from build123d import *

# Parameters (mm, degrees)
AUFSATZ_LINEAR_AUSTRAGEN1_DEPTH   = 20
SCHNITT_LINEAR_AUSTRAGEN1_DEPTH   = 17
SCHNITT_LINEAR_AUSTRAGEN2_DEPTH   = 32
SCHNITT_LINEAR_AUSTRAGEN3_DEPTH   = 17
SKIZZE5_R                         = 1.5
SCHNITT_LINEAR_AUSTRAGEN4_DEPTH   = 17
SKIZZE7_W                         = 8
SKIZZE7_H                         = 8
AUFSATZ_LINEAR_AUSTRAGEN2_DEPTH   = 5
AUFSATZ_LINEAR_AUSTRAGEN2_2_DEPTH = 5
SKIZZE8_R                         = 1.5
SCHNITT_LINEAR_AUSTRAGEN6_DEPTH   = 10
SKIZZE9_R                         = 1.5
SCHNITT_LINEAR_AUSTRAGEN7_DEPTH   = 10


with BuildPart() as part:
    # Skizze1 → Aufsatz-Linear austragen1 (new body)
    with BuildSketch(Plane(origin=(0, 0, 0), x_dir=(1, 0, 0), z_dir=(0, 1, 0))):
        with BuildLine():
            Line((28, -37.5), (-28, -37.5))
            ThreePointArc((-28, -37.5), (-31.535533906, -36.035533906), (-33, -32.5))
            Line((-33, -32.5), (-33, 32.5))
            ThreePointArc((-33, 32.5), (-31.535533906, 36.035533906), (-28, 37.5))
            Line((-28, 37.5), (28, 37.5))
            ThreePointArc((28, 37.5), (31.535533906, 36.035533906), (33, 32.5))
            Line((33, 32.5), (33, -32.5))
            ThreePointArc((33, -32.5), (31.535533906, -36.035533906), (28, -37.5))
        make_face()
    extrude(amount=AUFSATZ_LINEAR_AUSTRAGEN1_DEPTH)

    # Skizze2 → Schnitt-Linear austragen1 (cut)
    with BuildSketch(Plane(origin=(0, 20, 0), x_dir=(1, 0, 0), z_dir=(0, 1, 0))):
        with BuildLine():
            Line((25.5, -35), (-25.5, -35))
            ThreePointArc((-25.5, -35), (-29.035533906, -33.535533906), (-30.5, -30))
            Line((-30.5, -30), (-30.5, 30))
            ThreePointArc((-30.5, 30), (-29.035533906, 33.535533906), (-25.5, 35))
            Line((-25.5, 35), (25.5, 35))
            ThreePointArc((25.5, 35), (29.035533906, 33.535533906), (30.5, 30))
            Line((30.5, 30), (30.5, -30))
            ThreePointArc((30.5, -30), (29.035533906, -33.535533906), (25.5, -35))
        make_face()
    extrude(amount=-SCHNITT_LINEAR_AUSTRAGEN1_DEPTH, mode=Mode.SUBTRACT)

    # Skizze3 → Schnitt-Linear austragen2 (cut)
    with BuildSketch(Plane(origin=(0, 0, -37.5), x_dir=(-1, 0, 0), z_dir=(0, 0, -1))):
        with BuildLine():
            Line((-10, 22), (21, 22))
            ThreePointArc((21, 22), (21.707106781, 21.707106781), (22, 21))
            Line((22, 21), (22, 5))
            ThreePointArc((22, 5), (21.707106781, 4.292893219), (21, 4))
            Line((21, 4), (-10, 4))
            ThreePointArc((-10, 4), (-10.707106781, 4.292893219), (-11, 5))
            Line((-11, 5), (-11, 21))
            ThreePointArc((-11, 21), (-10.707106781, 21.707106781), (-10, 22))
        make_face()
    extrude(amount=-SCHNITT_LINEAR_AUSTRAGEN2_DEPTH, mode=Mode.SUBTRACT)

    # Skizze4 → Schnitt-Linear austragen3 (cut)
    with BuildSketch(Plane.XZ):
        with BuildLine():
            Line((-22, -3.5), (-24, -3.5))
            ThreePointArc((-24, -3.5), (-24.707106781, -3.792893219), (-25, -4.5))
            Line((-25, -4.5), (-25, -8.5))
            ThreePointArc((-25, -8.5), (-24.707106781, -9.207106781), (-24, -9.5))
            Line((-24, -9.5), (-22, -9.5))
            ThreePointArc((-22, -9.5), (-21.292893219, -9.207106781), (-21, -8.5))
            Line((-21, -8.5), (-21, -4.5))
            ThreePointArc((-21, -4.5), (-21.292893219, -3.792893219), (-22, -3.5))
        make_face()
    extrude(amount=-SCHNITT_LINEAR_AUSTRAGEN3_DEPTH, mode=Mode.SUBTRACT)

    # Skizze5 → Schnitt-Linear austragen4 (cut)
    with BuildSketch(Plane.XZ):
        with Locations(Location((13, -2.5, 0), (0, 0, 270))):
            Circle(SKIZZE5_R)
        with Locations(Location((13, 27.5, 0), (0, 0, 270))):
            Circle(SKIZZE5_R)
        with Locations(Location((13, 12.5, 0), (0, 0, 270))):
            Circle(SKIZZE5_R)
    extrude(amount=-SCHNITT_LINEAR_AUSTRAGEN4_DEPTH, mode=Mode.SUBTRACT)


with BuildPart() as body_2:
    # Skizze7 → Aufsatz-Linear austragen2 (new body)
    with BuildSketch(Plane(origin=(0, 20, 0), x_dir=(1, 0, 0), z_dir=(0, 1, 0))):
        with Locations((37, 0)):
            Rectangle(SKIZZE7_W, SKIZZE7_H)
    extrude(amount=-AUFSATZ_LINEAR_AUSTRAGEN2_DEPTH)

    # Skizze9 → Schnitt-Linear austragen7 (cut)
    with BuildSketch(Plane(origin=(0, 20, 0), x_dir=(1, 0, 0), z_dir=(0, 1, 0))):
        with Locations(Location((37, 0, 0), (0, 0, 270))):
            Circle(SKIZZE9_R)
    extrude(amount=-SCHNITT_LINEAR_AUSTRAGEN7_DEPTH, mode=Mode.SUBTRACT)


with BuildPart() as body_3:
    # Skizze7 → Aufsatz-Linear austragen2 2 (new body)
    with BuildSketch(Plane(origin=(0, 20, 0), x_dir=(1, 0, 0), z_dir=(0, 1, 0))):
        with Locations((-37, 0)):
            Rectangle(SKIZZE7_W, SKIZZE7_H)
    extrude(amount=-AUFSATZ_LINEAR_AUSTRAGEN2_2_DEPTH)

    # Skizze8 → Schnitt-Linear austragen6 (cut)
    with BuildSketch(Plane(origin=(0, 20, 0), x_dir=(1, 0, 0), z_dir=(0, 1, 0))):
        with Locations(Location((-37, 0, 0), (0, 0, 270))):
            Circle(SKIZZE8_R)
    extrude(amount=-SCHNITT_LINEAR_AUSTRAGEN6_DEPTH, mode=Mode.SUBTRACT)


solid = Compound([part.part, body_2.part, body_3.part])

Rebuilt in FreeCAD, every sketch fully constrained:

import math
import FreeCAD as App
import Part
import Sketcher
Q = App.Units.Quantity


def add_polygon(sketch, points):
    """Adds a closed chain of lines whose ends are joined by coincident constraints."""
    first, n = sketch.GeometryCount, len(points)
    for a, b in zip(points, points[1:] + points[:1]):
        sketch.addGeometry(Part.LineSegment(App.Vector(*a, 0), App.Vector(*b, 0)), False)
    for i in range(n):
        sketch.addConstraint(Sketcher.Constraint("Coincident", first + i, 2, first + (i + 1) % n, 1))

doc = App.newDocument("Part")
body = doc.addObject("PartDesign::Body", "Body")

# Sketch on XZ plane
sketch1 = doc.addObject("Sketcher::SketchObject", "Sketch")
body.addObject(sketch1)
sketch1.AttachmentSupport = (doc.XZ_Plane, [""])
sketch1.MapMode = "FlatFace"
sketch1.addGeometry(Part.LineSegment(App.Vector(-28, 37.5, 0), App.Vector(28, 37.5, 0)), False)
sketch1.addGeometry(Part.ArcOfCircle(Part.Circle(App.Vector(28, 32.5, 0), App.Vector(0, 0, 1), 5), math.radians(0), math.radians(90)), False)
sketch1.addGeometry(Part.LineSegment(App.Vector(33, 32.5, 0), App.Vector(33, -32.5, 0)), False)
sketch1.addGeometry(Part.ArcOfCircle(Part.Circle(App.Vector(28, -32.5, 0), App.Vector(0, 0, 1), 5), math.radians(-90), math.radians(0)), False)
sketch1.addGeometry(Part.LineSegment(App.Vector(28, -37.5, 0), App.Vector(-28, -37.5, 0)), False)
sketch1.addGeometry(Part.ArcOfCircle(Part.Circle(App.Vector(-28, -32.5, 0), App.Vector(0, 0, 1), 5), math.radians(180), math.radians(270)), False)
sketch1.addGeometry(Part.LineSegment(App.Vector(-33, -32.5, 0), App.Vector(-33, 32.5, 0)), False)
sketch1.addGeometry(Part.ArcOfCircle(Part.Circle(App.Vector(-28, 32.5, 0), App.Vector(0, 0, 1), 5), math.radians(90), math.radians(180)), False)
sketch1.addConstraint(Sketcher.Constraint("Tangent", 0, 2, 1, 2))
sketch1.addConstraint(Sketcher.Constraint("Tangent", 1, 1, 2, 1))
sketch1.addConstraint(Sketcher.Constraint("Tangent", 2, 2, 3, 2))
sketch1.addConstraint(Sketcher.Constraint("Tangent", 3, 1, 4, 1))
sketch1.addConstraint(Sketcher.Constraint("Tangent", 4, 2, 5, 2))
sketch1.addConstraint(Sketcher.Constraint("Tangent", 5, 1, 6, 1))
sketch1.addConstraint(Sketcher.Constraint("Tangent", 6, 2, 7, 2))
sketch1.addConstraint(Sketcher.Constraint("Tangent", 7, 1, 0, 1))
sketch1.addConstraint(Sketcher.Constraint("Horizontal", 0))
sketch1.addConstraint(Sketcher.Constraint("Vertical", 2))
sketch1.addConstraint(Sketcher.Constraint("Horizontal", 4))
sketch1.addConstraint(Sketcher.Constraint("Vertical", 6))
sketch1.addConstraint(Sketcher.Constraint("Equal", 1, 3))
sketch1.addConstraint(Sketcher.Constraint("Equal", 3, 5))
sketch1.addConstraint(Sketcher.Constraint("Equal", 5, 7))
sketch1.addConstraint(Sketcher.Constraint("Symmetric", 1, 3, 5, 3, -1, 1))
sketch1.addConstraint(Sketcher.Constraint("Radius", 1, Q("5 mm")))
sketch1.addConstraint(Sketcher.Constraint("DistanceX", 0, 1, 0, 2, Q("56 mm")))
sketch1.addConstraint(Sketcher.Constraint("DistanceY", 2, 2, 2, 1, Q("65 mm")))
pad1 = doc.addObject("PartDesign::Pad", "Pad")
body.addObject(pad1)
pad1.Profile = sketch1
pad1.Length = 20
pad1.Reversed = True

# Sketch on XZ plane
sketch2 = doc.addObject("Sketcher::SketchObject", "Sketch001")
body.addObject(sketch2)
sketch2.AttachmentSupport = (doc.XZ_Plane, [""])
sketch2.MapMode = "FlatFace"
sketch2.AttachmentOffset = App.Placement(App.Vector(0, 0, -20), App.Rotation())
sketch2.addGeometry(Part.LineSegment(App.Vector(-25.5, 35, 0), App.Vector(25.5, 35, 0)), False)
sketch2.addGeometry(Part.ArcOfCircle(Part.Circle(App.Vector(25.5, 30, 0), App.Vector(0, 0, 1), 5), math.radians(0), math.radians(90)), False)
sketch2.addGeometry(Part.LineSegment(App.Vector(30.5, 30, 0), App.Vector(30.5, -30, 0)), False)
sketch2.addGeometry(Part.ArcOfCircle(Part.Circle(App.Vector(25.5, -30, 0), App.Vector(0, 0, 1), 5), math.radians(-90), math.radians(0)), False)
sketch2.addGeometry(Part.LineSegment(App.Vector(25.5, -35, 0), App.Vector(-25.5, -35, 0)), False)
sketch2.addGeometry(Part.ArcOfCircle(Part.Circle(App.Vector(-25.5, -30, 0), App.Vector(0, 0, 1), 5), math.radians(180), math.radians(270)), False)
sketch2.addGeometry(Part.LineSegment(App.Vector(-30.5, -30, 0), App.Vector(-30.5, 30, 0)), False)
sketch2.addGeometry(Part.ArcOfCircle(Part.Circle(App.Vector(-25.5, 30, 0), App.Vector(0, 0, 1), 5), math.radians(90), math.radians(180)), False)
sketch2.addConstraint(Sketcher.Constraint("Tangent", 0, 2, 1, 2))
sketch2.addConstraint(Sketcher.Constraint("Tangent", 1, 1, 2, 1))
sketch2.addConstraint(Sketcher.Constraint("Tangent", 2, 2, 3, 2))
sketch2.addConstraint(Sketcher.Constraint("Tangent", 3, 1, 4, 1))
sketch2.addConstraint(Sketcher.Constraint("Tangent", 4, 2, 5, 2))
sketch2.addConstraint(Sketcher.Constraint("Tangent", 5, 1, 6, 1))
sketch2.addConstraint(Sketcher.Constraint("Tangent", 6, 2, 7, 2))
sketch2.addConstraint(Sketcher.Constraint("Tangent", 7, 1, 0, 1))
sketch2.addConstraint(Sketcher.Constraint("Horizontal", 0))
sketch2.addConstraint(Sketcher.Constraint("Vertical", 2))
sketch2.addConstraint(Sketcher.Constraint("Horizontal", 4))
sketch2.addConstraint(Sketcher.Constraint("Vertical", 6))
sketch2.addConstraint(Sketcher.Constraint("Equal", 1, 3))
sketch2.addConstraint(Sketcher.Constraint("Equal", 3, 5))
sketch2.addConstraint(Sketcher.Constraint("Equal", 5, 7))
sketch2.addConstraint(Sketcher.Constraint("Symmetric", 1, 3, 5, 3, -1, 1))
sketch2.addConstraint(Sketcher.Constraint("Radius", 1, Q("5 mm")))
sketch2.addConstraint(Sketcher.Constraint("DistanceX", 0, 1, 0, 2, Q("51 mm")))
sketch2.addConstraint(Sketcher.Constraint("DistanceY", 2, 2, 2, 1, Q("60 mm")))
pocket1 = doc.addObject("PartDesign::Pocket", "Pocket")
body.addObject(pocket1)
pocket1.Profile = sketch2
pocket1.Length = 17
pocket1.Reversed = True

# Sketch on XY plane
sketch3 = doc.addObject("Sketcher::SketchObject", "Sketch002")
body.addObject(sketch3)
sketch3.AttachmentSupport = (doc.XY_Plane, [""])
sketch3.MapMode = "FlatFace"
sketch3.AttachmentOffset = App.Placement(App.Vector(0, 0, -37.5), App.Rotation())
sketch3.addGeometry(Part.LineSegment(App.Vector(-21, 22, 0), App.Vector(10, 22, 0)), False)
sketch3.addGeometry(Part.ArcOfCircle(Part.Circle(App.Vector(10, 21, 0), App.Vector(0, 0, 1), 1), math.radians(0), math.radians(90)), False)
sketch3.addGeometry(Part.LineSegment(App.Vector(11, 21, 0), App.Vector(11, 5, 0)), False)
sketch3.addGeometry(Part.ArcOfCircle(Part.Circle(App.Vector(10, 5, 0), App.Vector(0, 0, 1), 1), math.radians(-90), math.radians(0)), False)
sketch3.addGeometry(Part.LineSegment(App.Vector(10, 4, 0), App.Vector(-21, 4, 0)), False)
sketch3.addGeometry(Part.ArcOfCircle(Part.Circle(App.Vector(-21, 5, 0), App.Vector(0, 0, 1), 1), math.radians(-180), math.radians(-90)), False)
sketch3.addGeometry(Part.LineSegment(App.Vector(-22, 5, 0), App.Vector(-22, 21, 0)), False)
sketch3.addGeometry(Part.ArcOfCircle(Part.Circle(App.Vector(-21, 21, 0), App.Vector(0, 0, 1), 1), math.radians(90), math.radians(180)), False)
sketch3.addConstraint(Sketcher.Constraint("Tangent", 0, 2, 1, 2))
sketch3.addConstraint(Sketcher.Constraint("Tangent", 1, 1, 2, 1))
sketch3.addConstraint(Sketcher.Constraint("Tangent", 2, 2, 3, 2))
sketch3.addConstraint(Sketcher.Constraint("Tangent", 3, 1, 4, 1))
sketch3.addConstraint(Sketcher.Constraint("Tangent", 4, 2, 5, 2))
sketch3.addConstraint(Sketcher.Constraint("Tangent", 5, 1, 6, 1))
sketch3.addConstraint(Sketcher.Constraint("Tangent", 6, 2, 7, 2))
sketch3.addConstraint(Sketcher.Constraint("Tangent", 7, 1, 0, 1))
sketch3.addConstraint(Sketcher.Constraint("Horizontal", 0))
sketch3.addConstraint(Sketcher.Constraint("Vertical", 2))
sketch3.addConstraint(Sketcher.Constraint("Horizontal", 4))
sketch3.addConstraint(Sketcher.Constraint("Vertical", 6))
sketch3.addConstraint(Sketcher.Constraint("Equal", 1, 3))
sketch3.addConstraint(Sketcher.Constraint("Equal", 3, 5))
sketch3.addConstraint(Sketcher.Constraint("Equal", 5, 7))
sketch3.addConstraint(Sketcher.Constraint("Radius", 1, Q("1 mm")))
sketch3.addConstraint(Sketcher.Constraint("DistanceX", 0, 1, 0, 2, Q("31 mm")))
sketch3.addConstraint(Sketcher.Constraint("DistanceY", 2, 2, 2, 1, Q("16 mm")))
sketch3.addConstraint(Sketcher.Constraint("DistanceX", -1, 1, 1, 3, Q("10 mm")))
sketch3.addConstraint(Sketcher.Constraint("DistanceY", -1, 1, 1, 3, Q("21 mm")))
pocket2 = doc.addObject("PartDesign::Pocket", "Pocket001")
body.addObject(pocket2)
pocket2.Profile = sketch3
pocket2.Length = 32
pocket2.Reversed = True

# Sketch on XZ plane
sketch4 = doc.addObject("Sketcher::SketchObject", "Sketch003")
body.addObject(sketch4)
sketch4.AttachmentSupport = (doc.XZ_Plane, [""])
sketch4.MapMode = "FlatFace"
sketch4.addGeometry(Part.LineSegment(App.Vector(-22, -3.5, 0), App.Vector(-24, -3.5, 0)), False)
sketch4.addGeometry(Part.ArcOfCircle(Part.Circle(App.Vector(-24, -4.5, 0), App.Vector(0, 0, 1), 1), math.radians(90), math.radians(180)), False)
sketch4.addGeometry(Part.LineSegment(App.Vector(-25, -4.5, 0), App.Vector(-25, -8.5, 0)), False)
sketch4.addGeometry(Part.ArcOfCircle(Part.Circle(App.Vector(-24, -8.5, 0), App.Vector(0, 0, 1), 1), math.radians(-180), math.radians(-90)), False)
sketch4.addGeometry(Part.LineSegment(App.Vector(-24, -9.5, 0), App.Vector(-22, -9.5, 0)), False)
sketch4.addGeometry(Part.ArcOfCircle(Part.Circle(App.Vector(-22, -8.5, 0), App.Vector(0, 0, 1), 1), math.radians(-90), math.radians(0)), False)
sketch4.addGeometry(Part.LineSegment(App.Vector(-21, -8.5, 0), App.Vector(-21, -4.5, 0)), False)
sketch4.addGeometry(Part.ArcOfCircle(Part.Circle(App.Vector(-22, -4.5, 0), App.Vector(0, 0, 1), 1), math.radians(0), math.radians(90)), False)
sketch4.addConstraint(Sketcher.Constraint("Tangent", 0, 2, 1, 1))
sketch4.addConstraint(Sketcher.Constraint("Tangent", 1, 2, 2, 1))
sketch4.addConstraint(Sketcher.Constraint("Tangent", 2, 2, 3, 1))
sketch4.addConstraint(Sketcher.Constraint("Tangent", 3, 2, 4, 1))
sketch4.addConstraint(Sketcher.Constraint("Tangent", 4, 2, 5, 1))
sketch4.addConstraint(Sketcher.Constraint("Tangent", 5, 2, 6, 1))
sketch4.addConstraint(Sketcher.Constraint("Tangent", 6, 2, 7, 1))
sketch4.addConstraint(Sketcher.Constraint("Tangent", 7, 2, 0, 1))
sketch4.addConstraint(Sketcher.Constraint("Horizontal", 0))
sketch4.addConstraint(Sketcher.Constraint("Vertical", 2))
sketch4.addConstraint(Sketcher.Constraint("Horizontal", 4))
sketch4.addConstraint(Sketcher.Constraint("Vertical", 6))
sketch4.addConstraint(Sketcher.Constraint("Equal", 1, 3))
sketch4.addConstraint(Sketcher.Constraint("Equal", 3, 5))
sketch4.addConstraint(Sketcher.Constraint("Equal", 5, 7))
sketch4.addConstraint(Sketcher.Constraint("Radius", 1, Q("1 mm")))
sketch4.addConstraint(Sketcher.Constraint("DistanceX", 0, 2, 0, 1, Q("2 mm")))
sketch4.addConstraint(Sketcher.Constraint("DistanceY", 2, 2, 2, 1, Q("4 mm")))
sketch4.addConstraint(Sketcher.Constraint("DistanceX", 1, 3, -1, 1, Q("24 mm")))
sketch4.addConstraint(Sketcher.Constraint("DistanceY", 1, 3, -1, 1, Q("4.5 mm")))
pocket3 = doc.addObject("PartDesign::Pocket", "Pocket002")
body.addObject(pocket3)
pocket3.Profile = sketch4
pocket3.Length = 17

# Sketch on XZ plane
sketch5 = doc.addObject("Sketcher::SketchObject", "Sketch004")
body.addObject(sketch5)
sketch5.AttachmentSupport = (doc.XZ_Plane, [""])
sketch5.MapMode = "FlatFace"
sketch5.addGeometry(Part.Circle(App.Vector(13, -2.5, 0), App.Vector(0, 0, 1), 1.5), False)
sketch5.addGeometry(Part.Circle(App.Vector(13, 27.5, 0), App.Vector(0, 0, 1), 1.5), False)
sketch5.addGeometry(Part.Circle(App.Vector(13, 12.5, 0), App.Vector(0, 0, 1), 1.5), False)
sketch5.addConstraint(Sketcher.Constraint("Equal", 0, 1))
sketch5.addConstraint(Sketcher.Constraint("Equal", 1, 2))
sketch5.addConstraint(Sketcher.Constraint("Vertical", 0, 3, 1, 3))
sketch5.addConstraint(Sketcher.Constraint("Vertical", 1, 3, 2, 3))
sketch5.addConstraint(Sketcher.Constraint("Diameter", 0, Q("3 mm")))
sketch5.addConstraint(Sketcher.Constraint("DistanceX", -1, 1, 0, 3, Q("13 mm")))
sketch5.addConstraint(Sketcher.Constraint("DistanceY", 0, 3, 1, 3, Q("30 mm")))
sketch5.addConstraint(Sketcher.Constraint("DistanceY", 0, 3, 2, 3, Q("15 mm")))
sketch5.addConstraint(Sketcher.Constraint("DistanceY", 0, 3, -1, 1, Q("2.5 mm")))
pocket4 = doc.addObject("PartDesign::Pocket", "Pocket003")
body.addObject(pocket4)
pocket4.Profile = sketch5
pocket4.Length = 17
body2 = doc.addObject("PartDesign::Body", "Body001")

# Sketch on XZ plane
sketch6 = doc.addObject("Sketcher::SketchObject", "Sketch005")
body2.addObject(sketch6)
sketch6.AttachmentSupport = (doc.getObject("XZ_Plane001"), [""])
sketch6.MapMode = "FlatFace"
sketch6.AttachmentOffset = App.Placement(App.Vector(0, 0, -20), App.Rotation())
add_polygon(sketch6, [(33, -4), (33, 4), (41, 4), (41, -4)])  # lines 0-3
sketch6.addConstraint(Sketcher.Constraint("Vertical", 0))
sketch6.addConstraint(Sketcher.Constraint("Horizontal", 1))
sketch6.addConstraint(Sketcher.Constraint("Vertical", 2))
sketch6.addConstraint(Sketcher.Constraint("Horizontal", 3))
sketch6.addConstraint(Sketcher.Constraint("Equal", 3, 0))
sketch6.addConstraint(Sketcher.Constraint("DistanceX", 1, 1, 1, 2, Q("8 mm")))
sketch6.addConstraint(Sketcher.Constraint("DistanceX", -1, 1, 0, 2, Q("33 mm")))
sketch6.addConstraint(Sketcher.Constraint("DistanceY", -1, 1, 0, 2, Q("4 mm")))
pad2 = doc.addObject("PartDesign::Pad", "Pad001")
body2.addObject(pad2)
pad2.Profile = sketch6
pad2.Length = 5

# Sketch on XZ plane
sketch7 = doc.addObject("Sketcher::SketchObject", "Sketch006")
body2.addObject(sketch7)
sketch7.AttachmentSupport = (doc.getObject("XZ_Plane001"), [""])
sketch7.MapMode = "FlatFace"
sketch7.AttachmentOffset = App.Placement(App.Vector(0, 0, -20), App.Rotation())
sketch7.addGeometry(Part.Circle(App.Vector(37, 0, 0), App.Vector(0, 0, 1), 1.5), False)
sketch7.addConstraint(Sketcher.Constraint("PointOnObject", 0, 3, -1))
sketch7.addConstraint(Sketcher.Constraint("Diameter", 0, Q("3 mm")))
sketch7.addConstraint(Sketcher.Constraint("DistanceX", -1, 1, 0, 3, Q("37 mm")))
pocket5 = doc.addObject("PartDesign::Pocket", "Pocket004")
body2.addObject(pocket5)
pocket5.Profile = sketch7
pocket5.Length = 10
pocket5.Reversed = True
body3 = doc.addObject("PartDesign::Body", "Body002")

# Sketch on XZ plane
sketch8 = doc.addObject("Sketcher::SketchObject", "Sketch007")
body3.addObject(sketch8)
sketch8.AttachmentSupport = (doc.getObject("XZ_Plane002"), [""])
sketch8.MapMode = "FlatFace"
sketch8.AttachmentOffset = App.Placement(App.Vector(0, 0, -20), App.Rotation())
add_polygon(sketch8, [(-41, -4), (-41, 4), (-33, 4), (-33, -4)])  # lines 0-3
sketch8.addConstraint(Sketcher.Constraint("Vertical", 0))
sketch8.addConstraint(Sketcher.Constraint("Horizontal", 1))
sketch8.addConstraint(Sketcher.Constraint("Vertical", 2))
sketch8.addConstraint(Sketcher.Constraint("Horizontal", 3))
sketch8.addConstraint(Sketcher.Constraint("Equal", 3, 0))
sketch8.addConstraint(Sketcher.Constraint("DistanceX", 1, 1, 1, 2, Q("8 mm")))
sketch8.addConstraint(Sketcher.Constraint("DistanceX", 0, 2, -1, 1, Q("41 mm")))
sketch8.addConstraint(Sketcher.Constraint("DistanceY", -1, 1, 0, 2, Q("4 mm")))
pad3 = doc.addObject("PartDesign::Pad", "Pad002")
body3.addObject(pad3)
pad3.Profile = sketch8
pad3.Length = 5

# Sketch on XZ plane
sketch9 = doc.addObject("Sketcher::SketchObject", "Sketch008")
body3.addObject(sketch9)
sketch9.AttachmentSupport = (doc.getObject("XZ_Plane002"), [""])
sketch9.MapMode = "FlatFace"
sketch9.AttachmentOffset = App.Placement(App.Vector(0, 0, -20), App.Rotation())
sketch9.addGeometry(Part.Circle(App.Vector(-37, 0, 0), App.Vector(0, 0, 1), 1.5), False)
sketch9.addConstraint(Sketcher.Constraint("PointOnObject", 0, 3, -1))
sketch9.addConstraint(Sketcher.Constraint("Diameter", 0, Q("3 mm")))
sketch9.addConstraint(Sketcher.Constraint("DistanceX", 0, 3, -1, 1, Q("37 mm")))
pocket6 = doc.addObject("PartDesign::Pocket", "Pocket005")
body3.addObject(pocket6)
pocket6.Profile = sketch9
pocket6.Length = 10
pocket6.Reversed = True

doc.recompute()
